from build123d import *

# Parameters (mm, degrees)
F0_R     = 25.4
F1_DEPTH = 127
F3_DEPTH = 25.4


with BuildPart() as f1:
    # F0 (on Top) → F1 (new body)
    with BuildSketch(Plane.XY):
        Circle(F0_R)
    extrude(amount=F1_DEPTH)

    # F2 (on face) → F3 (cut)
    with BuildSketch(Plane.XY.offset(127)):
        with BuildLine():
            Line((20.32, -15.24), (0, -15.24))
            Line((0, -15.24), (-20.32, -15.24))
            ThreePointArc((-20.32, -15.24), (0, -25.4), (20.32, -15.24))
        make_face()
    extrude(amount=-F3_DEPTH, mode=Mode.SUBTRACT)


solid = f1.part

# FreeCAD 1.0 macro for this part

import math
import FreeCAD as App
import Part
import Sketcher
from FreeCAD import Vector
Q = App.Units.Quantity

doc = App.newDocument("Part")
params = doc.addObject("Spreadsheet::Sheet", "Params")
for row, (alias, value) in enumerate([
    ("sketch1_diameter", "2 in"),
    ("pad1_length", "5 in"),
    ("sketch2_radius", "1 in"),
    ("sketch2_width", "1.6 in"),
    ("pocket1_length", "1 in"),
], start=1):
    params.set(f"A{row}", alias)
    params.set(f"B{row}", "=" + value)
    params.setAlias(f"B{row}", alias)

body = doc.addObject("PartDesign::Body", "Body")

# Sketch on XY plane
sketch1 = body.newObject("Sketcher::SketchObject", "Sketch")
sketch1.AttachmentSupport = (doc.getObject("XY_Plane"), [""])
sketch1.MapMode = "FlatFace"
sketch1.addGeometry(Part.Circle(Vector(0, 0, 0), Vector(0, 0, 1), 25), False)
sketch1.addConstraint([
    Sketcher.Constraint("Coincident", 0, 3, -1, 1),
    Sketcher.Constraint("Diameter", 0, Q("2 in")),
])
sketch1.setExpression("Constraints[1]", "Params.sketch1_diameter")
pad1 = body.newObject("PartDesign::Pad", "Pad")
pad1.Profile = sketch1
pad1.setExpression("Length", "Params.pad1_length")

# Sketch on XY plane
sketch2 = body.newObject("Sketcher::SketchObject", "Sketch001")
sketch2.AttachmentSupport = (doc.getObject("XY_Plane"), [""])
sketch2.MapMode = "FlatFace"
sketch2.AttachmentOffset = App.Placement(Vector(0, 0, 5 * 25.4), App.Rotation())
sketch2.addGeometry([
    Part.LineSegment(Vector(20, -15, 0), Vector(-20, -15, 0)),
    Part.ArcOfCircle(Part.Circle(Vector(0, 0, 0), Vector(0, 0, 1), 25), math.radians(-143), math.radians(-37)),
], False)
sketch2.addConstraint([
    Sketcher.Constraint("Coincident", 0, 1, 1, 2),
    Sketcher.Constraint("Coincident", 1, 1, 0, 2),
    Sketcher.Constraint("Horizontal", 0),
    Sketcher.Constraint("Coincident", 1, 3, -1, 1),
    Sketcher.Constraint("Radius", 1, Q("1 in")),
    Sketcher.Constraint("DistanceX", 0, 2, 0, 1, Q("1.6 in")),
])
sketch2.setExpression("Constraints[4]", "Params.sketch2_radius")
sketch2.setExpression("Constraints[5]", "Params.sketch2_width")
pocket1 = body.newObject("PartDesign::Pocket", "Pocket")
pocket1.Profile = sketch2
pocket1.setExpression("Length", "Params.pocket1_length")

doc.recompute()
